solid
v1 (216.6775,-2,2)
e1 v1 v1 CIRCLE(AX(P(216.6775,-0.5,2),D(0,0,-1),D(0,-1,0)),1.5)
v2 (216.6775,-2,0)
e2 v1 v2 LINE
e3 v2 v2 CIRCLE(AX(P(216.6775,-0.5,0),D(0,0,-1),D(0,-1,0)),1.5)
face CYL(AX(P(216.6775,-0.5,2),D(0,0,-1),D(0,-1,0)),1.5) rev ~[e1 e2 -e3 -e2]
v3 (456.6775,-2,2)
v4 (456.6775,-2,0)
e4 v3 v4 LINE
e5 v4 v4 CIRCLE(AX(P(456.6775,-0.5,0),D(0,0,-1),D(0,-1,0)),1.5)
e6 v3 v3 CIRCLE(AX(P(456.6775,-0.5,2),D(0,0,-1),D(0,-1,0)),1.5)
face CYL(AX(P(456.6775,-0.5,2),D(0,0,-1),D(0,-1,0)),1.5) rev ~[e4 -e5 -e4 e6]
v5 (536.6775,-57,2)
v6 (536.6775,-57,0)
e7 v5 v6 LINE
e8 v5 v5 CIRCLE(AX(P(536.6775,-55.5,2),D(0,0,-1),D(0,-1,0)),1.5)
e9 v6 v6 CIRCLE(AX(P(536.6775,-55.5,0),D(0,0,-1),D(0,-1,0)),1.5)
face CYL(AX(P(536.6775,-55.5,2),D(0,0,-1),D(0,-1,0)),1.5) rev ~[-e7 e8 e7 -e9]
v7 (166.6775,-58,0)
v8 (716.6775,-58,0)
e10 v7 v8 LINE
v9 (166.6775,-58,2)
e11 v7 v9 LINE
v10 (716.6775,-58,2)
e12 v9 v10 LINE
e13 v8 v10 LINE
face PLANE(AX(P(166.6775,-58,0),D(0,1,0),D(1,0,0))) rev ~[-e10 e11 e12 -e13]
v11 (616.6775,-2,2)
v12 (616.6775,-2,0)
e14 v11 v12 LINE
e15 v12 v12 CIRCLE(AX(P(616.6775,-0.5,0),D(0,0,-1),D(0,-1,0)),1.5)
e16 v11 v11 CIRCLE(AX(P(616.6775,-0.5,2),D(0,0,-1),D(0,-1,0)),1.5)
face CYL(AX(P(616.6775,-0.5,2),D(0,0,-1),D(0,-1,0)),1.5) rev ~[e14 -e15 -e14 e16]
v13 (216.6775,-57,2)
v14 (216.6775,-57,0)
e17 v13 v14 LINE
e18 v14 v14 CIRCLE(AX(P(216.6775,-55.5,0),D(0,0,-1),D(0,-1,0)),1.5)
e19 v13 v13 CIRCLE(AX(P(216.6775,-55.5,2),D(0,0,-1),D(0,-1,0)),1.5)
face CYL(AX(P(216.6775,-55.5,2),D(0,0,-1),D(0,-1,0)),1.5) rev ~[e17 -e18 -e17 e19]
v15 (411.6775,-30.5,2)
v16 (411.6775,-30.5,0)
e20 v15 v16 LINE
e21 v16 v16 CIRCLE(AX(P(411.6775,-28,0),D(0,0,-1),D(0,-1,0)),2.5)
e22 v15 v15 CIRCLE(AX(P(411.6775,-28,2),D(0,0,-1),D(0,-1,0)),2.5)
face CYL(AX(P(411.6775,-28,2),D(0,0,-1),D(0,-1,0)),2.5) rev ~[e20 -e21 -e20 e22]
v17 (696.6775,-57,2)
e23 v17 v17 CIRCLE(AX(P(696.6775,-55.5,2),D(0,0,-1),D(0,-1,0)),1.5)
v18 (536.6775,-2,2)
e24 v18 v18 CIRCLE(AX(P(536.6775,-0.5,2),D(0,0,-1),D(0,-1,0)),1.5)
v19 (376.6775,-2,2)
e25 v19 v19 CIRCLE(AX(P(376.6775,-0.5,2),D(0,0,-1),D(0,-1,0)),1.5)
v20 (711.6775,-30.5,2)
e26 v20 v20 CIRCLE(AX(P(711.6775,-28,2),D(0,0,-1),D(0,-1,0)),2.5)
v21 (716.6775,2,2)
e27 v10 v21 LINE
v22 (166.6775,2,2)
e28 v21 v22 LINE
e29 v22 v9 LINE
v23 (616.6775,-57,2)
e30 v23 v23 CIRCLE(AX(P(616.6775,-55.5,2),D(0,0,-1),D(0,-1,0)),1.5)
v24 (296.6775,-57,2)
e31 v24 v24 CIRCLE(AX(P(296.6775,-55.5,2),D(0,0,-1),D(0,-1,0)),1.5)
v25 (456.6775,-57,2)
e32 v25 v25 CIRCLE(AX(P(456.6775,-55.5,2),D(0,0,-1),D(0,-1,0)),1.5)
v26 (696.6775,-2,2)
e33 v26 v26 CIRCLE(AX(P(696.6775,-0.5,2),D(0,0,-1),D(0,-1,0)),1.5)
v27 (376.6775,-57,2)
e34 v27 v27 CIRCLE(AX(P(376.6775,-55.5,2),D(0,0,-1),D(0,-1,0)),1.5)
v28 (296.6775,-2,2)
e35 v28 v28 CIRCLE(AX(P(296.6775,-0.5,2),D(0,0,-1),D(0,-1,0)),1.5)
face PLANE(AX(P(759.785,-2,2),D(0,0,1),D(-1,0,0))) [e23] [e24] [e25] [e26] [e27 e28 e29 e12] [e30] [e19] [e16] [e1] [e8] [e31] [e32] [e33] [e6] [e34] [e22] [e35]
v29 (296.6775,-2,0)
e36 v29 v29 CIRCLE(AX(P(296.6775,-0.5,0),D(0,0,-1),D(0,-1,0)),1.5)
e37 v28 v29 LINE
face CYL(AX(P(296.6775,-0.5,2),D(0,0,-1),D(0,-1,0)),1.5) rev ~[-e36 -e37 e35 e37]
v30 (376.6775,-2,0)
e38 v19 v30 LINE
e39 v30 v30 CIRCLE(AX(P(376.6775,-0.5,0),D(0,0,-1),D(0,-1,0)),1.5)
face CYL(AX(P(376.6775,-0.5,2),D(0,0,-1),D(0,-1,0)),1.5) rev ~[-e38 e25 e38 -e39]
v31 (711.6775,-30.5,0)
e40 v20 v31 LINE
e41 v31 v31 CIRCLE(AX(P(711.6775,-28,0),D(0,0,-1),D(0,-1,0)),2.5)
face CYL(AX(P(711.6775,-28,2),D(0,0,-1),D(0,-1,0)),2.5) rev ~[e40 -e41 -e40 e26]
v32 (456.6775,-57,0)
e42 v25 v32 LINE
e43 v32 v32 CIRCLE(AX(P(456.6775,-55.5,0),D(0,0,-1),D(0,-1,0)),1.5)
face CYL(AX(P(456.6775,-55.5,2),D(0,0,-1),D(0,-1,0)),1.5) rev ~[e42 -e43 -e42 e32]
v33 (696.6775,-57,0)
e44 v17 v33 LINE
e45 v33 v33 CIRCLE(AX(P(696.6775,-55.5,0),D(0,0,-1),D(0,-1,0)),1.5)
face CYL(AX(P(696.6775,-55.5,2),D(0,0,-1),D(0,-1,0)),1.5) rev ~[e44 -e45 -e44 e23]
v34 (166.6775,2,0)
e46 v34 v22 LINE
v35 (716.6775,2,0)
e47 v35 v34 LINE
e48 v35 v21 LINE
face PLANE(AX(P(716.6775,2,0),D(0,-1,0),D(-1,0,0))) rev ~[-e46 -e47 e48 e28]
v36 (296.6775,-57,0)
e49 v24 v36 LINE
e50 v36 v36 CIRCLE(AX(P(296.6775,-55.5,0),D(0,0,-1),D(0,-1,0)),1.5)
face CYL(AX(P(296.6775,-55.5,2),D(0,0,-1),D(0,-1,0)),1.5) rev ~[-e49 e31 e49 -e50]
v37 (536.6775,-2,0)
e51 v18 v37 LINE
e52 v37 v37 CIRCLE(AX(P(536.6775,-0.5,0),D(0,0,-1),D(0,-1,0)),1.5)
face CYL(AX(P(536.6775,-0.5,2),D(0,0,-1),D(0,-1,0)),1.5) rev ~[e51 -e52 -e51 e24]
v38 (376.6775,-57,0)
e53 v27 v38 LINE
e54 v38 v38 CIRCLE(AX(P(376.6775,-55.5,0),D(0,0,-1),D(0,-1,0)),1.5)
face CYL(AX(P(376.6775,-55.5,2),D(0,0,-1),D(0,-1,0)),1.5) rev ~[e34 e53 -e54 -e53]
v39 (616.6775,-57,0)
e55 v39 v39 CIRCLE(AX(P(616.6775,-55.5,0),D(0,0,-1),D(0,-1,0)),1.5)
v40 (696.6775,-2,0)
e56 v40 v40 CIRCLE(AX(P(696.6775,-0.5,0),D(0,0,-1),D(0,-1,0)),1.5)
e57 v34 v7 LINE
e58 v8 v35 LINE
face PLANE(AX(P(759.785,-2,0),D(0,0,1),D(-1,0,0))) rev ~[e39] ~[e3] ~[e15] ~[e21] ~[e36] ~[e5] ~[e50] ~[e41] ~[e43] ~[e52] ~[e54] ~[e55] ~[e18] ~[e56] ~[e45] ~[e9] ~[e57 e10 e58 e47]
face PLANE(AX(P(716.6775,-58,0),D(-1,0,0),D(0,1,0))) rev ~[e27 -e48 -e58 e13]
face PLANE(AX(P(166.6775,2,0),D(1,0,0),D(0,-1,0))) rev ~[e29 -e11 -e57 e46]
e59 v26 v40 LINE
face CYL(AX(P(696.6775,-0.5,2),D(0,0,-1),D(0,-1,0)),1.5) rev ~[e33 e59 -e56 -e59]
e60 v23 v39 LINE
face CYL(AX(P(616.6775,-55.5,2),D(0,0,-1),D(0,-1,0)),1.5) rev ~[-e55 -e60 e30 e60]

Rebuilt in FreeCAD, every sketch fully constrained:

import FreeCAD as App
import Part
import Sketcher

V = App.Vector
Q = App.Units.Quantity


def add_polygon(sketch, points):
    """Adds a closed chain of lines whose ends are joined by coincident constraints."""
    first, n = sketch.GeometryCount, len(points)
    for a, b in zip(points, points[1:] + points[:1]):
        sketch.addGeometry(Part.LineSegment(App.Vector(*a, 0), App.Vector(*b, 0)), False)
    for i in range(n):
        sketch.addConstraint(Sketcher.Constraint("Coincident", first + i, 2, first + (i + 1) % n, 1))

doc = App.newDocument("Part")
body = doc.addObject("PartDesign::Body", "Body")

# Sketch on XY plane
sketch1 = doc.addObject("Sketcher::SketchObject", "Sketch")
body.addObject(sketch1)
sketch1.AttachmentSupport = (doc.XY_Plane, [""])
sketch1.MapMode = "FlatFace"
add_polygon(sketch1, [(717, -58), (717, 2), (167, 2), (167, -58)])  # lines 0-3
sketch1.addConstraint(Sketcher.Constraint("Vertical", 0))
sketch1.addConstraint(Sketcher.Constraint("Horizontal", 1))
sketch1.addConstraint(Sketcher.Constraint("Vertical", 2))
sketch1.addConstraint(Sketcher.Constraint("Horizontal", 3))
sketch1.addConstraint(Sketcher.Constraint("DistanceX", 1, 2, 1, 1, Q("550 mm")))
sketch1.addConstraint(Sketcher.Constraint("DistanceY", 0, 1, 0, 2, Q("60 mm")))
sketch1.addConstraint(Sketcher.Constraint("DistanceY", -1, 1, 0, 2, Q("2 mm")))
sketch1.addConstraint(Sketcher.Constraint("DistanceX", -1, 1, 0, 2, Q("716.6775 mm")))
pad1 = doc.addObject("PartDesign::Pad", "Pad")
body.addObject(pad1)
pad1.Profile = sketch1
pad1.Length = 2

# Sketch on XY plane
sketch2 = doc.addObject("Sketcher::SketchObject", "Sketch001")
body.addObject(sketch2)
sketch2.AttachmentSupport = (doc.XY_Plane, [""])
sketch2.MapMode = "FlatFace"
sketch2.AttachmentOffset = App.Placement(V(0, 0, 2), App.Rotation())
sketch2.addGeometry(Part.Circle(V(111.7, -28, 0), V(0, 0, 1), 2.5), False)
sketch2.addGeometry(Part.Circle(V(411.7, -28, 0), V(0, 0, 1), 2.5), False)
sketch2.addGeometry(Part.Circle(V(711.7, -28, 0), V(0, 0, 1), 2.5), False)
sketch2.addConstraint(Sketcher.Constraint("Equal", 0, 1))
sketch2.addConstraint(Sketcher.Constraint("Equal", 1, 2))
sketch2.addConstraint(Sketcher.Constraint("Horizontal", 0, 3, 1, 3))
sketch2.addConstraint(Sketcher.Constraint("Horizontal", 1, 3, 2, 3))
sketch2.addConstraint(Sketcher.Constraint("Diameter", 0, Q("5 mm")))
sketch2.addConstraint(Sketcher.Constraint("DistanceY", 0, 3, -1, 1, Q("28 mm")))
sketch2.addConstraint(Sketcher.Constraint("DistanceX", 0, 3, 1, 3, Q("300 mm")))
sketch2.addConstraint(Sketcher.Constraint("DistanceX", 1, 3, 2, 3, Q("300 mm")))
sketch2.addConstraint(Sketcher.Constraint("DistanceX", -1, 1, 0, 3, Q("111.6775 mm")))
doc.recompute()
hole = doc.addObject("PartDesign::Hole", "Hole")
body.addObject(hole)
hole.Profile = sketch2
hole.ThreadType = "None"
hole.Diameter = 5
hole.DepthType = "ThroughAll"

# Sketch on XY plane
sketch3 = doc.addObject("Sketcher::SketchObject", "Sketch002")
body.addObject(sketch3)
sketch3.AttachmentSupport = (doc.XY_Plane, [""])
sketch3.MapMode = "FlatFace"
sketch3.AttachmentOffset = App.Placement(V(0, 0, 2), App.Rotation())
sketch3.addGeometry(Part.Circle(V(536.7, -55.5, 0), V(0, 0, 1), 1.5), False)
sketch3.addGeometry(Part.Circle(V(536.7, -0.5, 0), V(0, 0, 1), 1.5), False)
sketch3.addGeometry(Part.Circle(V(456.7, -0.5, 0), V(0, 0, 1), 1.5), False)
sketch3.addGeometry(Part.Circle(V(376.7, -55.5, 0), V(0, 0, 1), 1.5), False)
sketch3.addGeometry(Part.Circle(V(376.7, -0.5, 0), V(0, 0, 1), 1.5), False)
sketch3.addGeometry(Part.Circle(V(296.7, -55.5, 0), V(0, 0, 1), 1.5), False)
sketch3.addGeometry(Part.Circle(V(296.7, -0.5, 0), V(0, 0, 1), 1.5), False)
sketch3.addGeometry(Part.Circle(V(216.7, -55.5, 0), V(0, 0, 1), 1.5), False)
sketch3.addGeometry(Part.Circle(V(216.7, -0.5, 0), V(0, 0, 1), 1.5), False)
sketch3.addGeometry(Part.Circle(V(456.7, -55.5, 0), V(0, 0, 1), 1.5), False)
sketch3.addGeometry(Part.Circle(V(696.7, -55.5, 0), V(0, 0, 1), 1.5), False)
sketch3.addGeometry(Part.Circle(V(696.7, -0.5, 0), V(0, 0, 1), 1.5), False)
sketch3.addGeometry(Part.Circle(V(616.7, -55.5, 0), V(0, 0, 1), 1.5), False)
sketch3.addGeometry(Part.Circle(V(616.7, -0.5, 0), V(0, 0, 1), 1.5), False)
sketch3.addConstraint(Sketcher.Constraint("Equal", 0, 1))
sketch3.addConstraint(Sketcher.Constraint("Equal", 1, 2))
sketch3.addConstraint(Sketcher.Constraint("Equal", 2, 3))
sketch3.addConstraint(Sketcher.Constraint("Equal", 3, 4))
sketch3.addConstraint(Sketcher.Constraint("Equal", 4, 5))
sketch3.addConstraint(Sketcher.Constraint("Equal", 5, 6))
sketch3.addConstraint(Sketcher.Constraint("Equal", 6, 7))
sketch3.addConstraint(Sketcher.Constraint("Equal", 7, 8))
sketch3.addConstraint(Sketcher.Constraint("Equal", 8, 9))
sketch3.addConstraint(Sketcher.Constraint("Equal", 9, 10))
sketch3.addConstraint(Sketcher.Constraint("Equal", 10, 11))
sketch3.addConstraint(Sketcher.Constraint("Equal", 11, 12))
sketch3.addConstraint(Sketcher.Constraint("Equal", 12, 13))
sketch3.addConstraint(Sketcher.Constraint("Horizontal", 1, 3, 2, 3))
sketch3.addConstraint(Sketcher.Constraint("Horizontal", 0, 3, 3, 3))
sketch3.addConstraint(Sketcher.Constraint("Horizontal", 2, 3, 4, 3))
sketch3.addConstraint(Sketcher.Constraint("Horizontal", 3, 3, 5, 3))
sketch3.addConstraint(Sketcher.Constraint("Horizontal", 4, 3, 6, 3))
sketch3.addConstraint(Sketcher.Constraint("Horizontal", 5, 3, 7, 3))
sketch3.addConstraint(Sketcher.Constraint("Horizontal", 6, 3, 8, 3))
sketch3.addConstraint(Sketcher.Constraint("Horizontal", 7, 3, 9, 3))
sketch3.addConstraint(Sketcher.Constraint("Horizontal", 9, 3, 10, 3))
sketch3.addConstraint(Sketcher.Constraint("Horizontal", 8, 3, 11, 3))
sketch3.addConstraint(Sketcher.Constraint("Horizontal", 10, 3, 12, 3))
sketch3.addConstraint(Sketcher.Constraint("Horizontal", 11, 3, 13, 3))
sketch3.addConstraint(Sketcher.Constraint("Vertical", 0, 3, 1, 3))
sketch3.addConstraint(Sketcher.Constraint("Vertical", 3, 3, 4, 3))
sketch3.addConstraint(Sketcher.Constraint("Vertical", 5, 3, 6, 3))
sketch3.addConstraint(Sketcher.Constraint("Vertical", 7, 3, 8, 3))
sketch3.addConstraint(Sketcher.Constraint("Vertical", 2, 3, 9, 3))
sketch3.addConstraint(Sketcher.Constraint("Vertical", 10, 3, 11, 3))
sketch3.addConstraint(Sketcher.Constraint("Vertical", 12, 3, 13, 3))
sketch3.addConstraint(Sketcher.Constraint("Diameter", 0, Q("3 mm")))
sketch3.addConstraint(Sketcher.Constraint("DistanceY", 0, 3, 1, 3, Q("55 mm")))
sketch3.addConstraint(Sketcher.Constraint("DistanceX", 2, 3, 1, 3, Q("80 mm")))
sketch3.addConstraint(Sketcher.Constraint("DistanceX", 3, 3, 2, 3, Q("80 mm")))
sketch3.addConstraint(Sketcher.Constraint("DistanceX", 5, 3, 3, 3, Q("80 mm")))
sketch3.addConstraint(Sketcher.Constraint("DistanceX", 7, 3, 5, 3, Q("80 mm")))
sketch3.addConstraint(Sketcher.Constraint("DistanceX", 0, 3, 10, 3, Q("160 mm")))
sketch3.addConstraint(Sketcher.Constraint("DistanceX", 0, 3, 12, 3, Q("80 mm")))
sketch3.addConstraint(Sketcher.Constraint("DistanceY", 0, 3, -1, 1, Q("55.5 mm")))
sketch3.addConstraint(Sketcher.Constraint("DistanceX", -1, 1, 0, 3, Q("536.6775 mm")))
doc.recompute()
hole2 = doc.addObject("PartDesign::Hole", "Hole001")
body.addObject(hole2)
hole2.Profile = sketch3
hole2.ThreadType = "None"
hole2.Diameter = 3
hole2.DepthType = "ThroughAll"

doc.recompute()
